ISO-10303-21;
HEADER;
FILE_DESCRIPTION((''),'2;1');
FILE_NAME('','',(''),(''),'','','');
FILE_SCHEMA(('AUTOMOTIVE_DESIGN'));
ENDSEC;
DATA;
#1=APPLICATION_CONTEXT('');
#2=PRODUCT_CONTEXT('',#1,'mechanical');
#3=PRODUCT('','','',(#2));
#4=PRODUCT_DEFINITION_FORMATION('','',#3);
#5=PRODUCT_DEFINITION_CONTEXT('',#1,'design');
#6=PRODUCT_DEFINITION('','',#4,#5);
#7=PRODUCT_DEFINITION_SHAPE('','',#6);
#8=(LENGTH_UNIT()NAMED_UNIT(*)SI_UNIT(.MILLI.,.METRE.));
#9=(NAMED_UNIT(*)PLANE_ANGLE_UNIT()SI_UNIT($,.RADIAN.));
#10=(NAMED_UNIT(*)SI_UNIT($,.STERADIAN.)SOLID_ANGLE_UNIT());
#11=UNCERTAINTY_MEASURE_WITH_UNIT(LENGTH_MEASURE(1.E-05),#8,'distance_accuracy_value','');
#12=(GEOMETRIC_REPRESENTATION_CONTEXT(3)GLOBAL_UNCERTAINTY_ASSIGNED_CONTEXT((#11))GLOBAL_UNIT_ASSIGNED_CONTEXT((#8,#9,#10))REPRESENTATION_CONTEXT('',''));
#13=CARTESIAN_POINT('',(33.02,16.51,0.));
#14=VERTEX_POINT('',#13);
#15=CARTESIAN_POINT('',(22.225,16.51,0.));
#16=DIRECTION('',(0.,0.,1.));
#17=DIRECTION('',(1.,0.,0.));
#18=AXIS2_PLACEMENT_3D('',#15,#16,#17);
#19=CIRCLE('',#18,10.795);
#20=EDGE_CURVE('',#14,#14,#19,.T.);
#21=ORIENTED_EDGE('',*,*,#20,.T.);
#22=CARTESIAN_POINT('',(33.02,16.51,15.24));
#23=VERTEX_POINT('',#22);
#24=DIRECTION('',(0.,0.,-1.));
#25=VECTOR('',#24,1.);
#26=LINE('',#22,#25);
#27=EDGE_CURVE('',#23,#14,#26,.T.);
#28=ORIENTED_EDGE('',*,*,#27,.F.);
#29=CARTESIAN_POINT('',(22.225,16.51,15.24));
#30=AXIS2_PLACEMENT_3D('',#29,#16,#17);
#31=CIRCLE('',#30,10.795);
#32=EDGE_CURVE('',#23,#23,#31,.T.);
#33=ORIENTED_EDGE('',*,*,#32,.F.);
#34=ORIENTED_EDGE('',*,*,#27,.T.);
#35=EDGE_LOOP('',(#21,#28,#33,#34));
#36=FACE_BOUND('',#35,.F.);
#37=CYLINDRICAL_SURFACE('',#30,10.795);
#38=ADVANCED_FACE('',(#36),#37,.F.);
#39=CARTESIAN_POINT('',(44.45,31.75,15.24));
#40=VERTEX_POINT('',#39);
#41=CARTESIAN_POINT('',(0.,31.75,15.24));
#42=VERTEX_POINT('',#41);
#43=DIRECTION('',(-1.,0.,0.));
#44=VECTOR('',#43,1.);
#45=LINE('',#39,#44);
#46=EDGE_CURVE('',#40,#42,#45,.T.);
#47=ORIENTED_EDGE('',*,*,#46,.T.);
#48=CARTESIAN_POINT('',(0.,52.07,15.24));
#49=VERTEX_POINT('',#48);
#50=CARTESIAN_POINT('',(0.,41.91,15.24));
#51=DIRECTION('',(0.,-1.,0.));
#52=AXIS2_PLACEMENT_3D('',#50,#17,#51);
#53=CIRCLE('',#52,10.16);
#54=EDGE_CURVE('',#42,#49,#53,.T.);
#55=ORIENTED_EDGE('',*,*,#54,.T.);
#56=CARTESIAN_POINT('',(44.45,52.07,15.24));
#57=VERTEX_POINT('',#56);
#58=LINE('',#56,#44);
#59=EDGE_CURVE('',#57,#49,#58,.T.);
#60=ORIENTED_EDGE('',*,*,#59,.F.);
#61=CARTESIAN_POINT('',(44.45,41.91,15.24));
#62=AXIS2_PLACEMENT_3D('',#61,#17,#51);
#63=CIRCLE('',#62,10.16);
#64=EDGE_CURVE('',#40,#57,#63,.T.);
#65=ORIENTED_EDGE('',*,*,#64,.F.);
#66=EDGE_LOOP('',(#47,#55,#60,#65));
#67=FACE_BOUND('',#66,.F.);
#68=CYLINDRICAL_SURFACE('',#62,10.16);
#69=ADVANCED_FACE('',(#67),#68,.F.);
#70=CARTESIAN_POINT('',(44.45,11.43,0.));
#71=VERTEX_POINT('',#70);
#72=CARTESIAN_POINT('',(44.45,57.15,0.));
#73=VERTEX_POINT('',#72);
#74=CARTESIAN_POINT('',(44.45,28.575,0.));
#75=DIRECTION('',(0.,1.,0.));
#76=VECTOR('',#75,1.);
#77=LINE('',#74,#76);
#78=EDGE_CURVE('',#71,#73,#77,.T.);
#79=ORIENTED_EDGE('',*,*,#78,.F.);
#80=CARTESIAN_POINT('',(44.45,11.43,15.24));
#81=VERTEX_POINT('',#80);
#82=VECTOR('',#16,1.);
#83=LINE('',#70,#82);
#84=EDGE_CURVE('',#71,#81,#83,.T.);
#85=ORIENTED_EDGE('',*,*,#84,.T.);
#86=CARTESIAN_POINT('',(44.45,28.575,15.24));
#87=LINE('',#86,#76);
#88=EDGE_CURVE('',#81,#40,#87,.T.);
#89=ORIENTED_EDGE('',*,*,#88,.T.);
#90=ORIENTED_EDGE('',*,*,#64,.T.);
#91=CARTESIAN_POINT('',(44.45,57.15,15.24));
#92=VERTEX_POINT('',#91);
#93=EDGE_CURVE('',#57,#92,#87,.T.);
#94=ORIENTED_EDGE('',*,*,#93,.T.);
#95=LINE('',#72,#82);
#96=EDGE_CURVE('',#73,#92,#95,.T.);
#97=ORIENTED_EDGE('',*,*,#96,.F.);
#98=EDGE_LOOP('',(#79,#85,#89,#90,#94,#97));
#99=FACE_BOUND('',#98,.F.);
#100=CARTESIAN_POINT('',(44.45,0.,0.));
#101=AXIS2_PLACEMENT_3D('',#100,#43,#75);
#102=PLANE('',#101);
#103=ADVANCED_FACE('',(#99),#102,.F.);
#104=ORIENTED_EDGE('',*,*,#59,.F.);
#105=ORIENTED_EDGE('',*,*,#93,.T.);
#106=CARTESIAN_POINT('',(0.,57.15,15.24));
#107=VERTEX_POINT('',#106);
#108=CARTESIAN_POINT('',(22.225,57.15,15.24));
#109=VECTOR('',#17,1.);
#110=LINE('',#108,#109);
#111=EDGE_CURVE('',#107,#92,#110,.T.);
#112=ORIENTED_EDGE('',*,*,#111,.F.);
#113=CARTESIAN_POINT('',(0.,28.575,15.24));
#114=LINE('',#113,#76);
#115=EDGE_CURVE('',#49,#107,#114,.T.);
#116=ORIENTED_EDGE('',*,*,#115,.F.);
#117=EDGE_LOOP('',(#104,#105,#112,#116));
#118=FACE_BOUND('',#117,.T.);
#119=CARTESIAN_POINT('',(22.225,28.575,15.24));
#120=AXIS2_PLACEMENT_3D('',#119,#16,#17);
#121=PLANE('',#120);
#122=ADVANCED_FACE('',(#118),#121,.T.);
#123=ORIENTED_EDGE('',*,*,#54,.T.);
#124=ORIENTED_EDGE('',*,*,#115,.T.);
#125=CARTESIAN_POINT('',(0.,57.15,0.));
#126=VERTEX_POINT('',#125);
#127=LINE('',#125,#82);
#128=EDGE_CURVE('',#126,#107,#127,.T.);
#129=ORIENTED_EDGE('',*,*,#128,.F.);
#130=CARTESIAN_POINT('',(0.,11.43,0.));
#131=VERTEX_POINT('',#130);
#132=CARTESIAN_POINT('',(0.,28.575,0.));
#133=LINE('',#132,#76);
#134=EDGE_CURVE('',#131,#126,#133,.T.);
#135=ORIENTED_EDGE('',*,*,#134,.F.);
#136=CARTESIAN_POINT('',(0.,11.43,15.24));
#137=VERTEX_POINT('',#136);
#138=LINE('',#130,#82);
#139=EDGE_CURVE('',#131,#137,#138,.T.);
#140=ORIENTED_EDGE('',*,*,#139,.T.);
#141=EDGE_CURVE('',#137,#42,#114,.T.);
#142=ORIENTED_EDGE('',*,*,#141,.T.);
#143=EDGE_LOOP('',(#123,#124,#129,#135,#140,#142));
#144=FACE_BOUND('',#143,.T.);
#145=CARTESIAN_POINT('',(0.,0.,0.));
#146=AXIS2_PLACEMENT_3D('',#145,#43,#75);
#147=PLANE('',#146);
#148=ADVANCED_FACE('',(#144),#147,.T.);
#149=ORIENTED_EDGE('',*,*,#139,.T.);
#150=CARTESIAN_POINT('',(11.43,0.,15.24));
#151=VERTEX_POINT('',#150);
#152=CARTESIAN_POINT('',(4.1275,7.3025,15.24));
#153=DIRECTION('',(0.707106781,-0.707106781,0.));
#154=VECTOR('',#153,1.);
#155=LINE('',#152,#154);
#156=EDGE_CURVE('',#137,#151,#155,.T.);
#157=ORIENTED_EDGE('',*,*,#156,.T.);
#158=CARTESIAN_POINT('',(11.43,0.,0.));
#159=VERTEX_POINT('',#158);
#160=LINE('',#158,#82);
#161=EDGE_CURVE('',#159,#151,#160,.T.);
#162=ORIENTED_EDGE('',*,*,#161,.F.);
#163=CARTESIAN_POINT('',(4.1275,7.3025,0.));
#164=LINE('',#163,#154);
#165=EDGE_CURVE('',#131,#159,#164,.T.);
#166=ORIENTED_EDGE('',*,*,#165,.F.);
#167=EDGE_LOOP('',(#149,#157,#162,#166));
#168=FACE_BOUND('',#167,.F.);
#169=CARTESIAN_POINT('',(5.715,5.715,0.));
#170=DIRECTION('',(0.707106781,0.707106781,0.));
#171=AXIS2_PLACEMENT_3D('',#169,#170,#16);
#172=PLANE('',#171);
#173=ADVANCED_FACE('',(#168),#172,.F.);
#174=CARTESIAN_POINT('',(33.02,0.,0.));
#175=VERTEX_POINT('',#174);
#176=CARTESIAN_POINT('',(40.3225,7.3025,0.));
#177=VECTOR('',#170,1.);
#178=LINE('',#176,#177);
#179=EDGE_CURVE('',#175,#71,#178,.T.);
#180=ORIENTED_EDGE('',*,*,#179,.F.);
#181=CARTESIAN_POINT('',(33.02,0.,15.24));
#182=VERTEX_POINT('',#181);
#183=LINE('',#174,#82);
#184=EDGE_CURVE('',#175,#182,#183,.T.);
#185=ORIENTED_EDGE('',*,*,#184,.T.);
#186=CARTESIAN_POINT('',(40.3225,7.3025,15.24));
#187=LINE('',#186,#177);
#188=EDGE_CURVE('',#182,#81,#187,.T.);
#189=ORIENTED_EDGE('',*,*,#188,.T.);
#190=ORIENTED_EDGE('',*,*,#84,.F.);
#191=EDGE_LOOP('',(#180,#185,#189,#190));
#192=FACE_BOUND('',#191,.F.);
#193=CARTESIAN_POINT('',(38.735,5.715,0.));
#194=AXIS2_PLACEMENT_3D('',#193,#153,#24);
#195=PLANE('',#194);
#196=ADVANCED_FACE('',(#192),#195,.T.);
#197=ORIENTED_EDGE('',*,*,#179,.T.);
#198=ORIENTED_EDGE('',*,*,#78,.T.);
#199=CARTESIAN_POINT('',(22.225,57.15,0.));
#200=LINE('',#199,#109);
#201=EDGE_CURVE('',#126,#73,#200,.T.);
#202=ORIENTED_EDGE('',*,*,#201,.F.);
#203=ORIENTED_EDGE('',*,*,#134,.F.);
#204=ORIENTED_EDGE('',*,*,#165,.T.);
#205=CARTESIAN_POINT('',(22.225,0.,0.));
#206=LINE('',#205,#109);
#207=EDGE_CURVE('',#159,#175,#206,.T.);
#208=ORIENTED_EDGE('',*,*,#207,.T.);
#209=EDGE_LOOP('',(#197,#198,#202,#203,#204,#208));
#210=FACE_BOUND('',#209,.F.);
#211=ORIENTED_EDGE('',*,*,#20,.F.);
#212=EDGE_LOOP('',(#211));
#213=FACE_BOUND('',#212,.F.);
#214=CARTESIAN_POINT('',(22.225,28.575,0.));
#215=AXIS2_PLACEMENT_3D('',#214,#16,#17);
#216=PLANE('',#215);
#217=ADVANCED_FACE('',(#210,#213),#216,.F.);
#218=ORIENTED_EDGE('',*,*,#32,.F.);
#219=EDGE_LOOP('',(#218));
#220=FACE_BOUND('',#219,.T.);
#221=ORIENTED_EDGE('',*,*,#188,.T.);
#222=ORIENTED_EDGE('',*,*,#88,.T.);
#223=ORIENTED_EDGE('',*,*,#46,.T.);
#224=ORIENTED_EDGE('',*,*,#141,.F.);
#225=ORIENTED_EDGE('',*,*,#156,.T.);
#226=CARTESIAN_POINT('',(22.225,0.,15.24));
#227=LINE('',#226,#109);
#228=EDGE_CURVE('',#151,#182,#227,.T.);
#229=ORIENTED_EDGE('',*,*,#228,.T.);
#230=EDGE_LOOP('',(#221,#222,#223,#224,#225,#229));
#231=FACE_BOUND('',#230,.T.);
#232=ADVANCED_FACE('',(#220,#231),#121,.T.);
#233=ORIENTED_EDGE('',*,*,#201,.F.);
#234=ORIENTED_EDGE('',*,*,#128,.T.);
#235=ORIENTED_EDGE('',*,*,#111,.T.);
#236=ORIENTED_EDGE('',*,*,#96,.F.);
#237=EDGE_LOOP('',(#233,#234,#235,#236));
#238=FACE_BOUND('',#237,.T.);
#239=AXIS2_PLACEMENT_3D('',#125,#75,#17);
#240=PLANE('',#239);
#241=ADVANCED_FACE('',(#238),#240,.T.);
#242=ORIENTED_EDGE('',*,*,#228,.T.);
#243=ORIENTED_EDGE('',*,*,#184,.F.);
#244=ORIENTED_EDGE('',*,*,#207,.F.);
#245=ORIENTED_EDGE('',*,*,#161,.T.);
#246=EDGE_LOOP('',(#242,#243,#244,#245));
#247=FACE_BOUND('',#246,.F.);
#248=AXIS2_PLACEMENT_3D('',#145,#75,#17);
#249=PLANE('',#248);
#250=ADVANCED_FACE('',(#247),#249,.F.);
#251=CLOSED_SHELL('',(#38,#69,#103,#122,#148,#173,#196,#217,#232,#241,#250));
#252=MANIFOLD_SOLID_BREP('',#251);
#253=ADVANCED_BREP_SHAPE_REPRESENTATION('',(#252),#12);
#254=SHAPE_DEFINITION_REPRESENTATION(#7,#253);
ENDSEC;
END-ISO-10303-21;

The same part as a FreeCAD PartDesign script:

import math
import FreeCAD as App
import Part
import Sketcher
from FreeCAD import Vector
Q = App.Units.Quantity


def edges_at(feature, points):
    """Names of the edges that pass closest to the given points."""
    edges = feature.Shape.Edges
    near = lambda p: min(range(len(edges)), key=lambda i: edges[i].distToShape(Part.Vertex(*p))[0])
    return sorted({f"Edge{near(p) + 1}" for p in points})

doc = App.newDocument("Part")
body = doc.addObject("PartDesign::Body", "Body")

sketch1 = doc.addObject("Sketcher::SketchObject", "Sketch")
body.addObject(sketch1)
sketch1.AttachmentSupport = (doc.XY_Plane, [""])
sketch1.MapMode = "FlatFace"
sketch1.addGeometry([
    Part.LineSegment(Vector(0, 57.15, 0), Vector(0, 0, 0)),
    Part.LineSegment(Vector(0, 0, 0), Vector(44.45, 0, 0)),
    Part.LineSegment(Vector(44.45, 0, 0), Vector(44.45, 57.15, 0)),
    Part.LineSegment(Vector(44.45, 57.15, 0), Vector(0, 57.15, 0)),
], False)
sketch1.addConstraint([
    Sketcher.Constraint("Coincident", 0, 2, 1, 1),
    Sketcher.Constraint("Coincident", 1, 2, 2, 1),
    Sketcher.Constraint("Coincident", 2, 2, 3, 1),
    Sketcher.Constraint("Coincident", 3, 2, 0, 1),
    Sketcher.Constraint("Vertical", 0),
    Sketcher.Constraint("Horizontal", 1),
    Sketcher.Constraint("Vertical", 2),
    Sketcher.Constraint("Horizontal", 3),
    Sketcher.Constraint("Coincident", 0, 2, -1, 1),
    Sketcher.Constraint("DistanceX", 1, 1, 1, 2, Q("1.75 in")),
    Sketcher.Constraint("DistanceY", 0, 2, 0, 1, Q("2.25 in")),
])
pad1 = doc.addObject("PartDesign::Pad", "Pad")
body.addObject(pad1)
pad1.Profile = sketch1
pad1.Length = Q("0.6 in")
doc.recompute()

chamfer = doc.addObject("PartDesign::Chamfer", "Chamfer")
body.addObject(chamfer)
chamfer.Base = (pad1, edges_at(pad1, [(0, 0, 7.62), (44.45, 0, 7.62)]))
chamfer.Size = Q("0.45 in")

sketch2 = doc.addObject("Sketcher::SketchObject", "Sketch001")
body.addObject(sketch2)
sketch2.AttachmentSupport = (doc.XY_Plane, [""])
sketch2.MapMode = "FlatFace"
sketch2.AttachmentOffset = App.Placement(Vector(0, 0, 0.6 * 25.4), App.Rotation())
sketch2.addGeometry(Part.Circle(Vector(22.225, 16.51, 0), Vector(0, 0, 1), 10.795), False)
sketch2.addConstraint([
    Sketcher.Constraint("Diameter", 0, Q("0.85 in")),
    Sketcher.Constraint("DistanceY", -1, 1, 0, 3, Q("0.65 in")),
    Sketcher.Constraint("DistanceX", -1, 1, 0, 3, Q("0.875 in")),
])
pocket1 = doc.addObject("PartDesign::Pocket", "Pocket")
body.addObject(pocket1)
pocket1.Profile = sketch2
pocket1.Length = Q("1 in")

sketch3 = doc.addObject("Sketcher::SketchObject", "Sketch002")
body.addObject(sketch3)
sketch3.AttachmentSupport = (doc.YZ_Plane, [""])
sketch3.MapMode = "FlatFace"
sketch3.AttachmentOffset = App.Placement(Vector(0, 0, 1.75 * 25.4), App.Rotation())
sketch3.addGeometry([
    Part.LineSegment(Vector(52.07, 15.24, 0), Vector(31.75, 15.24, 0)),
    Part.ArcOfCircle(Part.Circle(Vector(41.91, 15.24, 0), Vector(0, 0, 1), 10.16), math.radians(180), math.radians(360)),
], False)
sketch3.addConstraint([
    Sketcher.Constraint("Coincident", 0, 1, 1, 2),
    Sketcher.Constraint("Coincident", 1, 1, 0, 2),
    Sketcher.Constraint("Horizontal", 0),
    Sketcher.Constraint("Horizontal", 1, 3, 0, 1),
    Sketcher.Constraint("Radius", 1, Q("0.4 in")),
    Sketcher.Constraint("DistanceY", -1, 1, 1, 3, Q("0.6 in")),
    Sketcher.Constraint("DistanceX", -1, 1, 1, 3, Q("1.65 in")),
])
pocket2 = doc.addObject("PartDesign::Pocket", "Pocket001")
body.addObject(pocket2)
pocket2.Profile = sketch3
pocket2.Length = Q("3 in")

doc.recompute()
